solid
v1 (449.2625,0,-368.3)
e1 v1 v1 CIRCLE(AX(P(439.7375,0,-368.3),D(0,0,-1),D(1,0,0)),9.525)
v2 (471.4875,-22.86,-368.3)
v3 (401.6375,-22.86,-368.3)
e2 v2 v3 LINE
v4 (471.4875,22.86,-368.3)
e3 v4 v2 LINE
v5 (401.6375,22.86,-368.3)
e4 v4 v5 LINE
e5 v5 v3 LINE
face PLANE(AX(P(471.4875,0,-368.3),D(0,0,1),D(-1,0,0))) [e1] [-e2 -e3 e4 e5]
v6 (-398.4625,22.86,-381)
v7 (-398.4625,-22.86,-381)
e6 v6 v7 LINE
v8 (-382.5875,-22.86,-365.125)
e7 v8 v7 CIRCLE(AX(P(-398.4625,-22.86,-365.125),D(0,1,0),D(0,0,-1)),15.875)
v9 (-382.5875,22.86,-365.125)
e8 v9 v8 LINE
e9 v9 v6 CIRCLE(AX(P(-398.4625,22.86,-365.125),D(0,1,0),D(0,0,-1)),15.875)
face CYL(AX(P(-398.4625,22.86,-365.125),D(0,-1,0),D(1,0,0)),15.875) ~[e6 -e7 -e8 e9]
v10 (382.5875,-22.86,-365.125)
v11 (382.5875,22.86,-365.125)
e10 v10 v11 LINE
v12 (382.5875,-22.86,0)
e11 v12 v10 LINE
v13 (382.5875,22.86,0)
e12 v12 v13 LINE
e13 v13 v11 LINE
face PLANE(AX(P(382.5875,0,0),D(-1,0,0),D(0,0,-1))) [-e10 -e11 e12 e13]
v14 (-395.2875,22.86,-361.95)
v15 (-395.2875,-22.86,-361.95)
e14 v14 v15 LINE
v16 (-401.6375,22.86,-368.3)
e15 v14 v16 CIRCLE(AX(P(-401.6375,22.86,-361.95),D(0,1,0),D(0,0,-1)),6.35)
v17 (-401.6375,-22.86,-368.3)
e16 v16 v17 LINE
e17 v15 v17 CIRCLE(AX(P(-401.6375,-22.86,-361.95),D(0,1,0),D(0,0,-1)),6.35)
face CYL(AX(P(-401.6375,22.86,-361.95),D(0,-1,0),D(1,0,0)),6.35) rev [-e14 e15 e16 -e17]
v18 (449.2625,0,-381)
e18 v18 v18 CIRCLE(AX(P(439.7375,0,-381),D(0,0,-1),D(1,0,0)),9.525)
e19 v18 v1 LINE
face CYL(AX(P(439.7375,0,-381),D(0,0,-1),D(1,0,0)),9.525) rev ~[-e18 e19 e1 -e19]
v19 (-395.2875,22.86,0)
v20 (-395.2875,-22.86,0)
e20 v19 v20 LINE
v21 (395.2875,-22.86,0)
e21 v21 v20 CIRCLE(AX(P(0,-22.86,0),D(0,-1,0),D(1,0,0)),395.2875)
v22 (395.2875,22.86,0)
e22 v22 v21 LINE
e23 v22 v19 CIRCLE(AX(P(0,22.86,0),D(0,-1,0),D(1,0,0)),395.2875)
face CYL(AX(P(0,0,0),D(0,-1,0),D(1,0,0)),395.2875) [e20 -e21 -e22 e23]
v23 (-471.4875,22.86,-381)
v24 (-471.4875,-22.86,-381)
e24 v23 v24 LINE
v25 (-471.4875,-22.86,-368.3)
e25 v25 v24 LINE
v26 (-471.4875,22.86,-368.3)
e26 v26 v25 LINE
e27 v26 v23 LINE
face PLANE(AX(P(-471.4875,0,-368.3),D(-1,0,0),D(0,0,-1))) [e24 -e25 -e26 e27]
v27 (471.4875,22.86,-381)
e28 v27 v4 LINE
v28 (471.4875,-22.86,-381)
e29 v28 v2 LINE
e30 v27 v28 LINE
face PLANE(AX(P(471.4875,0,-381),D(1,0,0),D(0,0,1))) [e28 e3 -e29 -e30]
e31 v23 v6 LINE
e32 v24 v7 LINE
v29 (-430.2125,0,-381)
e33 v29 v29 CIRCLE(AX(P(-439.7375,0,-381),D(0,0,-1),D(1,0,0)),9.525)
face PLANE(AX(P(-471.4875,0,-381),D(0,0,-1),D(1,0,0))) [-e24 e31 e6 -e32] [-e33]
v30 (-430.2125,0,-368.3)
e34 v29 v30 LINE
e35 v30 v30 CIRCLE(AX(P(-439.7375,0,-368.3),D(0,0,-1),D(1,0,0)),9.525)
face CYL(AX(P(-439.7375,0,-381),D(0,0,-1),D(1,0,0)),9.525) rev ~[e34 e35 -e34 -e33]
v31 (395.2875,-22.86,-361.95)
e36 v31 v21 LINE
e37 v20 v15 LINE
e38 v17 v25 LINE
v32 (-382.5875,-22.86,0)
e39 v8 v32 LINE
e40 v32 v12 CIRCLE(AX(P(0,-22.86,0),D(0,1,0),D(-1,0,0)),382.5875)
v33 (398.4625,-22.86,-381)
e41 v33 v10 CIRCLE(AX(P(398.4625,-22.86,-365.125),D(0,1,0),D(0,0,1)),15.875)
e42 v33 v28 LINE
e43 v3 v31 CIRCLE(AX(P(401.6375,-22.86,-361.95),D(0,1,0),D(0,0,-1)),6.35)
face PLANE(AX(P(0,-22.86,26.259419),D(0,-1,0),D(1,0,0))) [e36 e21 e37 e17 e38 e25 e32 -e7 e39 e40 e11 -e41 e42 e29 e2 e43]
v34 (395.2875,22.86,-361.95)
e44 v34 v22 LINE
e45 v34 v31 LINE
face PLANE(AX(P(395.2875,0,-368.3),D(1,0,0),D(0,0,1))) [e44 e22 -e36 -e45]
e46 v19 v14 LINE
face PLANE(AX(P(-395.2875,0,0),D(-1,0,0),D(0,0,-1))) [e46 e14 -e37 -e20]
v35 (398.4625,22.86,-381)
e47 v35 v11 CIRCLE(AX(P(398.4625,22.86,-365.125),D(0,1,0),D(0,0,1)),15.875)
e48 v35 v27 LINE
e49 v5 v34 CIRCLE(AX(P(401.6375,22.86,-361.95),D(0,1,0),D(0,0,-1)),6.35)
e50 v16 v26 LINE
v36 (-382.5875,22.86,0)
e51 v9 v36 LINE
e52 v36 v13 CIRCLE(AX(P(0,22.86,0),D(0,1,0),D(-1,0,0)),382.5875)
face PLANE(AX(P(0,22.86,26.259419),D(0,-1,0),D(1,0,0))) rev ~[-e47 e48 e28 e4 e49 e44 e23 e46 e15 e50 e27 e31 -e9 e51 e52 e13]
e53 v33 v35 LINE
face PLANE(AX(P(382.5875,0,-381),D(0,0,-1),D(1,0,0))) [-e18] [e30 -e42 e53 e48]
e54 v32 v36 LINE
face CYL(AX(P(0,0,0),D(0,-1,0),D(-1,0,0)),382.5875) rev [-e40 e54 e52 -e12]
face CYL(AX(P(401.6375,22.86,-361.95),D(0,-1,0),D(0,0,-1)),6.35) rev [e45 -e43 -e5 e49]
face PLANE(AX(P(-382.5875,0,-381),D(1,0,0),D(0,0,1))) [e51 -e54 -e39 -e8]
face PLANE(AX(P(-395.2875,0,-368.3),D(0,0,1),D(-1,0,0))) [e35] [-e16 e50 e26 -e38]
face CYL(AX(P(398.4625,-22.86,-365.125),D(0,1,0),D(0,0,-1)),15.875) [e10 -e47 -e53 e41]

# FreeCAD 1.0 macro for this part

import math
import FreeCAD as App
import Part
import Sketcher

V = App.Vector
Q = App.Units.Quantity


def edges_at(feature, points):
    """Names of the edges that pass closest to the given points."""
    edges = feature.Shape.Edges
    near = lambda p: min(range(len(edges)), key=lambda i: edges[i].distToShape(Part.Vertex(*p))[0])
    return sorted({f"Edge{near(p) + 1}" for p in points})

doc = App.newDocument("Part")
body = doc.addObject("PartDesign::Body", "Body")

# Sketch on XZ plane
sketch1 = body.newObject("Sketcher::SketchObject", "Sketch")
sketch1.AttachmentSupport = (doc.getObject("XZ_Plane"), [""])
sketch1.MapMode = "FlatFace"
sketch1.addGeometry([
    Part.LineSegment(V(383, -381, 0), V(471, -381, 0)),  # 0
    Part.LineSegment(V(471, -381, 0), V(471, -368, 0)),  # 1
    Part.LineSegment(V(471, -368, 0), V(395, -368, 0)),  # 2
    Part.LineSegment(V(395, -368, 0), V(395, 0, 0)),  # 3
    Part.ArcOfCircle(Part.Circle(V(0, 0, 0), V(0, 0, 1), 395), math.radians(0), math.radians(180)),  # 4
    Part.LineSegment(V(-395, 0, 0), V(-395, -368, 0)),  # 5
    Part.LineSegment(V(-395, -368, 0), V(-471, -368, 0)),  # 6
    Part.LineSegment(V(-471, -368, 0), V(-471, -381, 0)),  # 7
    Part.LineSegment(V(-471, -381, 0), V(-383, -381, 0)),  # 8
    Part.LineSegment(V(-383, -381, 0), V(-383, 0, 0)),  # 9
    Part.ArcOfCircle(Part.Circle(V(0, 0, 0), V(0, 0, 1), 383), math.radians(0), math.radians(180)),  # 10
    Part.LineSegment(V(383, 0, 0), V(383, -381, 0)),  # 11
], False)
sketch1.addConstraint([
    Sketcher.Constraint("Coincident", 0, 2, 1, 1),
    Sketcher.Constraint("Coincident", 1, 2, 2, 1),
    Sketcher.Constraint("Coincident", 2, 2, 3, 1),
    Sketcher.Constraint("Tangent", 3, 2, 4, 1),
    Sketcher.Constraint("Tangent", 4, 2, 5, 1),
    Sketcher.Constraint("Coincident", 5, 2, 6, 1),
    Sketcher.Constraint("Coincident", 6, 2, 7, 1),
    Sketcher.Constraint("Coincident", 7, 2, 8, 1),
    Sketcher.Constraint("Coincident", 8, 2, 9, 1),
    Sketcher.Constraint("Tangent", 9, 2, 10, 2),
    Sketcher.Constraint("Tangent", 10, 1, 11, 1),
    Sketcher.Constraint("Coincident", 11, 2, 0, 1),
    Sketcher.Constraint("Horizontal", 0),
    Sketcher.Constraint("Vertical", 1),
    Sketcher.Constraint("Horizontal", 2),
    Sketcher.Constraint("Vertical", 3),
    Sketcher.Constraint("Vertical", 5),
    Sketcher.Constraint("Horizontal", 6),
    Sketcher.Constraint("Vertical", 7),
    Sketcher.Constraint("Horizontal", 8),
    Sketcher.Constraint("Vertical", 9),
    Sketcher.Constraint("Vertical", 11),
    Sketcher.Constraint("Coincident", 4, 3, -1, 1),
    Sketcher.Constraint("Coincident", 10, 3, -1, 1),
    Sketcher.Constraint("Symmetric", 1, 2, 6, 2, -2),
    Sketcher.Constraint("Horizontal", 0, 2, 7, 2),
    Sketcher.Constraint("DistanceX", 2, 2, 2, 1, Q("3 in")),
    Sketcher.Constraint("DistanceY", 9, 1, 9, 2, Q("15 in")),
    Sketcher.Constraint("DistanceX", 0, 1, 0, 2, Q("3.5 in")),
    Sketcher.Constraint("DistanceY", 1, 1, 1, 2, Q("0.5 in")),
    Sketcher.Constraint("Radius", 4, Q("15.5625 in")),
])
pad1 = body.newObject("PartDesign::Pad", "Pad")
pad1.Profile = sketch1
pad1.Length = Q("1.8 in")
pad1.Midplane = True

# Sketch on XY plane
sketch2 = body.newObject("Sketcher::SketchObject", "Sketch001")
sketch2.AttachmentSupport = (doc.getObject("XY_Plane"), [""])
sketch2.MapMode = "FlatFace"
sketch2.AttachmentOffset = App.Placement(V(0, 0, -15 * 25.4), App.Rotation())
sketch2.addGeometry([
    Part.Circle(V(-440, 0, 0), V(0, 0, 1), 10),
    Part.Circle(V(440, 0, 0), V(0, 0, 1), 10),
], False)
sketch2.addConstraint([
    Sketcher.Constraint("Equal", 0, 1),
    Sketcher.Constraint("Symmetric", 0, 3, 1, 3, -1, 1),
    Sketcher.Constraint("PointOnObject", 0, 3, -1),
    Sketcher.Constraint("Diameter", 0, Q("0.75 in")),
    Sketcher.Constraint("DistanceX", 0, 3, -1, 1, Q("17.3125 in")),
])
pocket1 = body.newObject("PartDesign::Pocket", "Pocket")
pocket1.Profile = sketch2
pocket1.Length = Q("1 in")
pocket1.Reversed = True
doc.recompute()

fillet = body.newObject("PartDesign::Fillet", "Fillet")
fillet.Base = (pocket1, edges_at(pocket1, [(-395.288, 0, -368.3), (395.288, 0, -368.3)]))
fillet.Radius = Q("0.25 in")
doc.recompute()

fillet2 = body.newObject("PartDesign::Fillet", "Fillet001")
fillet2.Base = (fillet, edges_at(fillet, [(-382.587, 0, -381), (382.587, 0, -381)]))
fillet2.Radius = Q("0.625 in")

doc.recompute()
